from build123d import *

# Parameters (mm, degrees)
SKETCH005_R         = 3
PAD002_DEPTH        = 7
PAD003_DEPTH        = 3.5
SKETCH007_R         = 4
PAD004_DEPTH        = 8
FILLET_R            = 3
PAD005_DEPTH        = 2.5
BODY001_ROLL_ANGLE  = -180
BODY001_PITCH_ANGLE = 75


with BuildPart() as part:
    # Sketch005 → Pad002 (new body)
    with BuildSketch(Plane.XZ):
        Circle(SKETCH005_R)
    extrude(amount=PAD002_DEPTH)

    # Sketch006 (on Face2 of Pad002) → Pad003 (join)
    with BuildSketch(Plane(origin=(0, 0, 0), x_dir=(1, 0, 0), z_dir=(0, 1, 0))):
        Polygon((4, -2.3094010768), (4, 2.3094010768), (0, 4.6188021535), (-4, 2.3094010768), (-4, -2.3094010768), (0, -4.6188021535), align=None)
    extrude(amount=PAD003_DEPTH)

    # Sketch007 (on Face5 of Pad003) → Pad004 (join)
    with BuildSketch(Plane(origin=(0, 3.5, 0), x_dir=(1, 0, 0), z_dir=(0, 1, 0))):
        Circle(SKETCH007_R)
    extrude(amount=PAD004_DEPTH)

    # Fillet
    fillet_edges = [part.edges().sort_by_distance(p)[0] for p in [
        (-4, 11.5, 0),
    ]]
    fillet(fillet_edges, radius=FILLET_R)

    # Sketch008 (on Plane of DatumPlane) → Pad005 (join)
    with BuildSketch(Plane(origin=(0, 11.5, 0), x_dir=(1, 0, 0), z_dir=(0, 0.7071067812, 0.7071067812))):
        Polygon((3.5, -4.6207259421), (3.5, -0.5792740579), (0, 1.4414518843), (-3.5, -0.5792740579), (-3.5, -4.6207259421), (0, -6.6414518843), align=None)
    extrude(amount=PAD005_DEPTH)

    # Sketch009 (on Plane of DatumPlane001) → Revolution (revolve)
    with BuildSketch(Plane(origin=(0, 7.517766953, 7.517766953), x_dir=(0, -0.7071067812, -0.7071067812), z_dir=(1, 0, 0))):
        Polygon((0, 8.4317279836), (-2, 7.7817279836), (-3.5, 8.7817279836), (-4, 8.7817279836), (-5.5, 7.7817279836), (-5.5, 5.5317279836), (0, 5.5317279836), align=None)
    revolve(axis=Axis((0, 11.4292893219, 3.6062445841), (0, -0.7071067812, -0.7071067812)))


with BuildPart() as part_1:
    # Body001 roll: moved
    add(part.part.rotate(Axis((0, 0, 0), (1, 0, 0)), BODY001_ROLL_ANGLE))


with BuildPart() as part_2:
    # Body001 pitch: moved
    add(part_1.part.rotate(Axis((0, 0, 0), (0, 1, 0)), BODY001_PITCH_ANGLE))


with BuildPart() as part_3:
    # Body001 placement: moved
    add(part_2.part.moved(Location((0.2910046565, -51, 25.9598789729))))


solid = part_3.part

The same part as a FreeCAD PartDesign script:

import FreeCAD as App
import Part
import Sketcher
Q = App.Units.Quantity


def edges_at(feature, points):
    """Names of the edges that pass closest to the given points."""
    edges = feature.Shape.Edges
    near = lambda p: min(range(len(edges)), key=lambda i: edges[i].distToShape(Part.Vertex(*p))[0])
    return sorted({f"Edge{near(p) + 1}" for p in points})


def add_polygon(sketch, points):
    """Adds a closed chain of lines whose ends are joined by coincident constraints."""
    first, n = sketch.GeometryCount, len(points)
    for a, b in zip(points, points[1:] + points[:1]):
        sketch.addGeometry(Part.LineSegment(App.Vector(*a, 0), App.Vector(*b, 0)), False)
    for i in range(n):
        sketch.addConstraint(Sketcher.Constraint("Coincident", first + i, 2, first + (i + 1) % n, 1))

doc = App.newDocument("Part")
body = doc.addObject("PartDesign::Body", "Body")

sketch1 = body.newObject("Sketcher::SketchObject", "Sketch")
sketch1.AttachmentSupport = (doc.getObject("XZ_Plane"), [""])
sketch1.MapMode = "FlatFace"
sketch1.addGeometry(Part.Circle(App.Vector(0, 0, 0), App.Vector(0, 0, 1), 3), False)
sketch1.addConstraint(Sketcher.Constraint("Coincident", 0, 3, -1, 1))
sketch1.addConstraint(Sketcher.Constraint("Diameter", 0, Q("6 mm")))
pad1 = body.newObject("PartDesign::Pad", "Pad")
pad1.Profile = sketch1
pad1.Length = 7

sketch2 = body.newObject("Sketcher::SketchObject", "Sketch001")
sketch2.AttachmentSupport = (doc.getObject("XZ_Plane"), [""])
sketch2.MapMode = "FlatFace"
add_polygon(sketch2, [(4, 2.3), (4, -2.3), (0, -4.6), (-4, -2.3), (-4, 2.3), (0, 4.6)])
sketch2.addConstraint(Sketcher.Constraint("Vertical", 0))
sketch2.addConstraint(Sketcher.Constraint("Vertical", 3))
sketch2.addConstraint(Sketcher.Constraint("Symmetric", 0, 2, 3, 2, -1, 1))
sketch2.addConstraint(Sketcher.Constraint("Symmetric", 1, 2, 4, 2, -1, 1))
sketch2.addConstraint(Sketcher.Constraint("PointOnObject", 1, 2, -2))
sketch2.addConstraint(Sketcher.Constraint("Parallel", 2, 5))
sketch2.addConstraint(Sketcher.Constraint("Horizontal", 0, 2, 2, 2))
sketch2.addConstraint(Sketcher.Constraint("Angle", 1, Q("-150 deg")))
sketch2.addConstraint(Sketcher.Constraint("DistanceX", -1, 1, 0, 2, Q("4 mm")))
sketch2.addConstraint(Sketcher.Constraint("DistanceY", 0, 2, -1, 1, Q("2.309401 mm")))
pad2 = body.newObject("PartDesign::Pad", "Pad001")
pad2.Profile = sketch2
pad2.Length = 3.5
pad2.Reversed = True

sketch3 = body.newObject("Sketcher::SketchObject", "Sketch002")
sketch3.AttachmentSupport = (doc.getObject("XZ_Plane"), [""])
sketch3.MapMode = "FlatFace"
sketch3.AttachmentOffset = App.Placement(App.Vector(0, 0, -3.5), App.Rotation())
sketch3.addGeometry(Part.Circle(App.Vector(0, 0, 0), App.Vector(0, 0, 1), 4), False)
sketch3.addConstraint(Sketcher.Constraint("Coincident", 0, 3, -1, 1))
sketch3.addConstraint(Sketcher.Constraint("Diameter", 0, Q("8 mm")))
pad3 = body.newObject("PartDesign::Pad", "Pad002")
pad3.Profile = sketch3
pad3.Length = 8
pad3.Reversed = True
doc.recompute()

fillet = body.newObject("PartDesign::Fillet", "Fillet")
fillet.Base = (pad3, edges_at(pad3, [(-4, 11.5, 0)]))
fillet.Radius = 3

sketch4 = body.newObject("Sketcher::SketchObject", "Sketch003")
sketch4.Placement = App.Placement(App.Vector(0, 11.5, 0), App.Rotation(App.Vector(1, 0, 0), App.Vector(0, 0.707106781, -0.707106781), App.Vector(0, 0.707106781, 0.707106781), "ZXY"))
add_polygon(sketch4, [(3.5, -4.6), (3.5, -0.6), (0, 1.4), (-3.5, -0.6), (-3.5, -4.6), (0, -6.6)])
sketch4.addConstraint(Sketcher.Constraint("Vertical", 0))
sketch4.addConstraint(Sketcher.Constraint("Vertical", 3))
sketch4.addConstraint(Sketcher.Constraint("Symmetric", 0, 2, 2, 2, -2))
sketch4.addConstraint(Sketcher.Constraint("PointOnObject", 1, 2, -2))
sketch4.addConstraint(Sketcher.Constraint("PointOnObject", 4, 2, -2))
sketch4.addConstraint(Sketcher.Constraint("Parallel", 1, 4))
sketch4.addConstraint(Sketcher.Constraint("Parallel", 2, 5))
sketch4.addConstraint(Sketcher.Constraint("Angle", 1, Q("150 deg")))
sketch4.addConstraint(Sketcher.Constraint("DistanceX", 2, 2, 0, 2, Q("7 mm")))
sketch4.addConstraint(Sketcher.Constraint("DistanceY", 0, 1, 0, 2, Q("4.041452 mm")))
sketch4.addConstraint(Sketcher.Constraint("DistanceY", -1, 1, 1, 2, Q("1.441452 mm")))
pad4 = body.newObject("PartDesign::Pad", "Pad003")
pad4.Profile = sketch4
pad4.Length = 2.5

sketch5 = body.newObject("Sketcher::SketchObject", "Sketch004")
sketch5.AttachmentSupport = (doc.getObject("YZ_Plane"), [""])
sketch5.MapMode = "FlatFace"
add_polygon(sketch5, [(13.48, 1.56), (14.43, 3.43), (16.2, 3.78), (16.56, 4.14), (16.91, 5.9), (15.32, 7.5), (11.43, 3.61)])
sketch5.addGeometry(Part.LineSegment(App.Vector(15.32, 7.5, 0), App.Vector(11.43, 3.61, 0)), True)
sketch5.addConstraint(Sketcher.Constraint("Coincident", 7, 1, 4, 2))
sketch5.addConstraint(Sketcher.Constraint("Coincident", 7, 2, 5, 2))
sketch5.addConstraint(Sketcher.Constraint("Perpendicular", 2, 4))
sketch5.addConstraint(Sketcher.Constraint("Perpendicular", 4, 5))
sketch5.addConstraint(Sketcher.Constraint("Perpendicular", 5, 6))
sketch5.addConstraint(Sketcher.Constraint("Equal", 1, 3))
sketch5.addConstraint(Sketcher.Constraint("Angle", 2, Q("45 deg")))
sketch5.addConstraint(Sketcher.Constraint("Distance", 2, Q("0.5 mm")))
sketch5.addConstraint(Sketcher.Constraint("Distance", 5, Q("5.5 mm")))
sketch5.addConstraint(Sketcher.Constraint("Distance", 6, Q("2.9 mm")))
sketch5.addConstraint(Sketcher.Constraint("Distance", 4, Q("2.25 mm")))
sketch5.addConstraint(Sketcher.Constraint("DistanceX", -1, 1, 6, 2, Q("13.479899 mm")))
sketch5.addConstraint(Sketcher.Constraint("DistanceX", -1, 1, 1, 2, Q("16.20226 mm")))
sketch5.addConstraint(Sketcher.Constraint("DistanceY", -1, 1, 1, 2, Q("3.783021 mm")))
sketch5.addConstraint(Sketcher.Constraint("DistanceY", -1, 1, 3, 2, Q("5.904342 mm")))
sketch5.addConstraint(Sketcher.Constraint("DistanceX", 0, 2, 2, 2, Q("2.12132 mm")))
revolution = body.newObject("PartDesign::Revolution", "Revolution")
revolution.Profile = sketch5
revolution.ReferenceAxis = (sketch5, ["Axis0"])
revolution.Angle = 360
body2 = doc.addObject("PartDesign::Body", "Body001")
doc.recompute()

body.Placement = App.Placement(App.Vector(0, 0, 0), App.Rotation(App.Vector(1, 0, 0), 180))
boolean = body2.newObject("PartDesign::Boolean", "Boolean")
boolean.Type = "Fuse"
boolean.addObjects([body])
body3 = doc.addObject("PartDesign::Body", "Body002")
doc.recompute()

body2.Placement = App.Placement(App.Vector(0, 0, 0), App.Rotation(App.Vector(0, 1, 0), 75))
boolean2 = body3.newObject("PartDesign::Boolean", "Boolean001")
boolean2.Type = "Fuse"
boolean2.addObjects([body2])
body4 = doc.addObject("PartDesign::Body", "Body003")
doc.recompute()

body3.Placement = App.Placement(App.Vector(0.291005, -51, 25.959879), App.Rotation(App.Vector(0, 0, 1), 0))
boolean3 = body4.newObject("PartDesign::Boolean", "Boolean002")
boolean3.Type = "Fuse"
boolean3.addObjects([body3])

doc.recompute()
